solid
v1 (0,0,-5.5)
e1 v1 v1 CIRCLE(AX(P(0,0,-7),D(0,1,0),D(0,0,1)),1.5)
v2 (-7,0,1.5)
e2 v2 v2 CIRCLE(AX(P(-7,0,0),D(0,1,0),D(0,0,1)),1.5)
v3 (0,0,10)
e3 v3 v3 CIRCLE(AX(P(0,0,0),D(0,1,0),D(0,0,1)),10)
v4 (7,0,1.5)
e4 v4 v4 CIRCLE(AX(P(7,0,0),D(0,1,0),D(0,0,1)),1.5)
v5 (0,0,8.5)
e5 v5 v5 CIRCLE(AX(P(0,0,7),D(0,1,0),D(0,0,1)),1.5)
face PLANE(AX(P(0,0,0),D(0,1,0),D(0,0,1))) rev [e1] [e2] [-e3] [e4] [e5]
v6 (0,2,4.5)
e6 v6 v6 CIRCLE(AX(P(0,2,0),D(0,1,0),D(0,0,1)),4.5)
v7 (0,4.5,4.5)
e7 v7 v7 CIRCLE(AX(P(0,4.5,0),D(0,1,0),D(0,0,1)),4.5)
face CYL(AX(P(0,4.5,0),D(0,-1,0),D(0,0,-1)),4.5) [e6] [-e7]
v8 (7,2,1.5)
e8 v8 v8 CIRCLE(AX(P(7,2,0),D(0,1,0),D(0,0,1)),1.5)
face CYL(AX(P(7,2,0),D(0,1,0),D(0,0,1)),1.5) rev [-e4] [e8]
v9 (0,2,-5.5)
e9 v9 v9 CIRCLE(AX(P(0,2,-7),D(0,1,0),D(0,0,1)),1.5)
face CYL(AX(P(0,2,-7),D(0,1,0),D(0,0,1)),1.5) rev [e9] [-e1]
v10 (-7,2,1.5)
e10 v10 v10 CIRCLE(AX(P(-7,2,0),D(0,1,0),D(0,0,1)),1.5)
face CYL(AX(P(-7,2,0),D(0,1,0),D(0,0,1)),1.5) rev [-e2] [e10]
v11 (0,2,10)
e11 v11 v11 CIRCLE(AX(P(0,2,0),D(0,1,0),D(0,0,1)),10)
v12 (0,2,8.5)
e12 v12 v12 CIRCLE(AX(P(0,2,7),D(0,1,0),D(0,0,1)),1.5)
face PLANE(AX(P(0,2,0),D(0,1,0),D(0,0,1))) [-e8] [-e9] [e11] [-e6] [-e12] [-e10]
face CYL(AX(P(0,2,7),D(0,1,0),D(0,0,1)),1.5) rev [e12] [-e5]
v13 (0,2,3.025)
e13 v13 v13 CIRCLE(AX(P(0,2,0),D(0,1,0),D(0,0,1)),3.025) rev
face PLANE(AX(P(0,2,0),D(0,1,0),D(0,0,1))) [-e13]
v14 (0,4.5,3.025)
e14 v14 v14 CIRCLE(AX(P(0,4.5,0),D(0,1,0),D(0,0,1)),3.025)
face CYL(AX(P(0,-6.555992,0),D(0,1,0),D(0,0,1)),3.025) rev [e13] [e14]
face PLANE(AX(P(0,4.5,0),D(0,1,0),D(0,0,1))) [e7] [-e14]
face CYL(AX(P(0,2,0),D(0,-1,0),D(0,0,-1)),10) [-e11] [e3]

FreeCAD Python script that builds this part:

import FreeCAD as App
import Part
import Sketcher
from FreeCAD import Vector
Q = App.Units.Quantity

doc = App.newDocument("Part")
body = doc.addObject("PartDesign::Body", "Body")

# Sketch on XZ plane
sketch1 = body.newObject("Sketcher::SketchObject", "Sketch")
sketch1.AttachmentSupport = (doc.getObject("XZ_Plane"), [""])
sketch1.MapMode = "FlatFace"
sketch1.addGeometry(Part.Circle(Vector(0, 0, 0), Vector(0, 0, 1), 10), False)
sketch1.addConstraint([
    Sketcher.Constraint("Coincident", 0, 3, -1, 1),
    Sketcher.Constraint("Diameter", 0, Q("20 mm")),
])
pad1 = body.newObject("PartDesign::Pad", "Pad")
pad1.Profile = sketch1
pad1.Length = 2
pad1.Reversed = True

# Sketch on XZ plane
sketch2 = body.newObject("Sketcher::SketchObject", "Sketch001")
sketch2.AttachmentSupport = (doc.getObject("XZ_Plane"), [""])
sketch2.MapMode = "FlatFace"
sketch2.AttachmentOffset = App.Placement(Vector(0, 0, -2), App.Rotation())
sketch2.addGeometry(Part.Circle(Vector(0, 0, 0), Vector(0, 0, 1), 4.5), False)
sketch2.addConstraint([
    Sketcher.Constraint("Coincident", 0, 3, -1, 1),
    Sketcher.Constraint("Diameter", 0, Q("9 mm")),
])
pad2 = body.newObject("PartDesign::Pad", "Pad001")
pad2.Profile = sketch2
pad2.Length = 2.5
pad2.Reversed = True

# Sketch on XZ plane
sketch3 = body.newObject("Sketcher::SketchObject", "Sketch002")
sketch3.AttachmentSupport = (doc.getObject("XZ_Plane"), [""])
sketch3.MapMode = "FlatFace"
sketch3.AttachmentOffset = App.Placement(Vector(0, 0, -2), App.Rotation())
sketch3.addGeometry([
    Part.Circle(Vector(0, -7, 0), Vector(0, 0, 1), 1.5),
    Part.Circle(Vector(-7, 0, 0), Vector(0, 0, 1), 1.5),
    Part.Circle(Vector(7, 0, 0), Vector(0, 0, 1), 1.5),
    Part.Circle(Vector(0, 7, 0), Vector(0, 0, 1), 1.5),
], False)
sketch3.addConstraint([
    Sketcher.Constraint("Equal", 0, 1),
    Sketcher.Constraint("Equal", 1, 2),
    Sketcher.Constraint("Equal", 2, 3),
    Sketcher.Constraint("Symmetric", 1, 3, 2, 3, -1, 1),
    Sketcher.Constraint("Symmetric", 0, 3, 3, 3, -1, 1),
    Sketcher.Constraint("PointOnObject", 0, 3, -2),
    Sketcher.Constraint("PointOnObject", 1, 3, -1),
    Sketcher.Constraint("Diameter", 0, Q("3 mm")),
    Sketcher.Constraint("DistanceY", 0, 3, -1, 1, Q("7 mm")),
    Sketcher.Constraint("DistanceX", 1, 3, -1, 1, Q("7 mm")),
])
doc.recompute()
hole = body.newObject("PartDesign::Hole", "Hole")
hole.Profile = sketch3
hole.ThreadType = "None"
hole.Diameter = 3
hole.DepthType = "Dimension"
hole.Depth = 50
hole.DrillPoint = "Angled"
hole.DrillPointAngle = 118
hole.Reversed = True

# Sketch on XZ plane
sketch4 = body.newObject("Sketcher::SketchObject", "Sketch003")
sketch4.AttachmentSupport = (doc.getObject("XZ_Plane"), [""])
sketch4.MapMode = "FlatFace"
sketch4.AttachmentOffset = App.Placement(Vector(0, 0, -4.5), App.Rotation())
sketch4.addGeometry(Part.Circle(Vector(0, 0, 0), Vector(0, 0, 1), 3), False)
sketch4.addConstraint([
    Sketcher.Constraint("Coincident", 0, 3, -1, 1),
    Sketcher.Constraint("Diameter", 0, Q("6.05 mm")),
])
pocket1 = body.newObject("PartDesign::Pocket", "Pocket")
pocket1.Profile = sketch4
pocket1.Length = 2.5
pocket1.Reversed = True

doc.recompute()
